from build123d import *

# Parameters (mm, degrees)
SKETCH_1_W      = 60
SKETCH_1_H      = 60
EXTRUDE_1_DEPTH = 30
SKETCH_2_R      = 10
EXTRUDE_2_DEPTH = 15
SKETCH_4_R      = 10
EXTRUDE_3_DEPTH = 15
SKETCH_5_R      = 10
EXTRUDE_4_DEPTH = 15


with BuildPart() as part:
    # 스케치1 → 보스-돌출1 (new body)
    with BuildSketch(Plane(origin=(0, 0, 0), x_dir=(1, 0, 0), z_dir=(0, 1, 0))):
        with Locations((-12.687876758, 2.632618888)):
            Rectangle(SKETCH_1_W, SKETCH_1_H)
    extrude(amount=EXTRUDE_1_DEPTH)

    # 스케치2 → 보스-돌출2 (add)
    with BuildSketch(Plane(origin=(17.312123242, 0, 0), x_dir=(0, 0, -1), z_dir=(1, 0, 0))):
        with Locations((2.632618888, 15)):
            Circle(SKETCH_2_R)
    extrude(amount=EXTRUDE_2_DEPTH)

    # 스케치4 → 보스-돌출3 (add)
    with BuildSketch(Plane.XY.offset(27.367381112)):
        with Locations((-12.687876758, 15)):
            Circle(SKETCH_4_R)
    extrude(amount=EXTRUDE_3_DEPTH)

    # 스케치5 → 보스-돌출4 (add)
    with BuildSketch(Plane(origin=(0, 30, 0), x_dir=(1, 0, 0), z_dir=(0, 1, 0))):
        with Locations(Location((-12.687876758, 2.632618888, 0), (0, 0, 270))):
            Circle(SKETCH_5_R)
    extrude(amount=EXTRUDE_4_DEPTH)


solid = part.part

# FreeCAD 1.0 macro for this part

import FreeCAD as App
import Part
import Sketcher
Q = App.Units.Quantity

doc = App.newDocument("Part")
body = doc.addObject("PartDesign::Body", "Body")

# Sketch on XZ plane
sketch1 = body.newObject("Sketcher::SketchObject", "Sketch")
sketch1.AttachmentSupport = (doc.getObject("XZ_Plane"), [""])
sketch1.MapMode = "FlatFace"
sketch1.addGeometry([
    Part.LineSegment(App.Vector(-42.687877, -32.632619, 0), App.Vector(-42.687877, 27.367381, 0)),
    Part.LineSegment(App.Vector(-42.687877, 27.367381, 0), App.Vector(17.312123, 27.367381, 0)),
    Part.LineSegment(App.Vector(17.312123, 27.367381, 0), App.Vector(17.312123, -32.632619, 0)),
    Part.LineSegment(App.Vector(17.312123, -32.632619, 0), App.Vector(-42.687877, -32.632619, 0)),
], False)
sketch1.addConstraint([
    Sketcher.Constraint("Coincident", 0, 2, 1, 1),
    Sketcher.Constraint("Coincident", 1, 2, 2, 1),
    Sketcher.Constraint("Coincident", 2, 2, 3, 1),
    Sketcher.Constraint("Coincident", 3, 2, 0, 1),
    Sketcher.Constraint("Vertical", 0),
    Sketcher.Constraint("Horizontal", 1),
    Sketcher.Constraint("Vertical", 2),
    Sketcher.Constraint("Horizontal", 3),
    Sketcher.Constraint("Equal", 3, 0),
    Sketcher.Constraint("DistanceX", 1, 1, 1, 2, Q("60 mm")),
    Sketcher.Constraint("DistanceY", -1, 1, 0, 2, Q("27.367381 mm")),
    Sketcher.Constraint("DistanceX", 0, 2, -1, 1, Q("42.687877 mm")),
])
pad1 = body.newObject("PartDesign::Pad", "Pad")
pad1.Profile = sketch1
pad1.Length = 30
pad1.Reversed = True

# Sketch on YZ plane
sketch2 = body.newObject("Sketcher::SketchObject", "Sketch001")
sketch2.AttachmentSupport = (doc.getObject("YZ_Plane"), [""])
sketch2.MapMode = "FlatFace"
sketch2.AttachmentOffset = App.Placement(App.Vector(0, 0, 17.312123), App.Rotation())
sketch2.addGeometry(Part.Circle(App.Vector(15, -2.632619, 0), App.Vector(0, 0, 1), 10), False)
sketch2.addConstraint([
    Sketcher.Constraint("Diameter", 0, Q("20 mm")),
    Sketcher.Constraint("DistanceX", -1, 1, 0, 3, Q("15 mm")),
    Sketcher.Constraint("DistanceY", 0, 3, -1, 1, Q("2.632619 mm")),
])
pad2 = body.newObject("PartDesign::Pad", "Pad001")
pad2.Profile = sketch2
pad2.Length = 15

# Sketch on XY plane
sketch3 = body.newObject("Sketcher::SketchObject", "Sketch002")
sketch3.AttachmentSupport = (doc.getObject("XY_Plane"), [""])
sketch3.MapMode = "FlatFace"
sketch3.AttachmentOffset = App.Placement(App.Vector(0, 0, 27.367381), App.Rotation())
sketch3.addGeometry(Part.Circle(App.Vector(-12.687877, 15, 0), App.Vector(0, 0, 1), 10), False)
sketch3.addConstraint([
    Sketcher.Constraint("Diameter", 0, Q("20 mm")),
    Sketcher.Constraint("DistanceY", -1, 1, 0, 3, Q("15 mm")),
    Sketcher.Constraint("DistanceX", 0, 3, -1, 1, Q("12.687877 mm")),
])
pad3 = body.newObject("PartDesign::Pad", "Pad002")
pad3.Profile = sketch3
pad3.Length = 15

# Sketch on XZ plane
sketch4 = body.newObject("Sketcher::SketchObject", "Sketch003")
sketch4.AttachmentSupport = (doc.getObject("XZ_Plane"), [""])
sketch4.MapMode = "FlatFace"
sketch4.AttachmentOffset = App.Placement(App.Vector(0, 0, -30), App.Rotation())
sketch4.addGeometry(Part.Circle(App.Vector(-12.687877, -2.632619, 0), App.Vector(0, 0, 1), 10), False)
sketch4.addConstraint([
    Sketcher.Constraint("Diameter", 0, Q("20 mm")),
    Sketcher.Constraint("DistanceY", 0, 3, -1, 1, Q("2.632619 mm")),
    Sketcher.Constraint("DistanceX", 0, 3, -1, 1, Q("12.687877 mm")),
])
pad4 = body.newObject("PartDesign::Pad", "Pad003")
pad4.Profile = sketch4
pad4.Length = 15
pad4.Reversed = True

doc.recompute()
